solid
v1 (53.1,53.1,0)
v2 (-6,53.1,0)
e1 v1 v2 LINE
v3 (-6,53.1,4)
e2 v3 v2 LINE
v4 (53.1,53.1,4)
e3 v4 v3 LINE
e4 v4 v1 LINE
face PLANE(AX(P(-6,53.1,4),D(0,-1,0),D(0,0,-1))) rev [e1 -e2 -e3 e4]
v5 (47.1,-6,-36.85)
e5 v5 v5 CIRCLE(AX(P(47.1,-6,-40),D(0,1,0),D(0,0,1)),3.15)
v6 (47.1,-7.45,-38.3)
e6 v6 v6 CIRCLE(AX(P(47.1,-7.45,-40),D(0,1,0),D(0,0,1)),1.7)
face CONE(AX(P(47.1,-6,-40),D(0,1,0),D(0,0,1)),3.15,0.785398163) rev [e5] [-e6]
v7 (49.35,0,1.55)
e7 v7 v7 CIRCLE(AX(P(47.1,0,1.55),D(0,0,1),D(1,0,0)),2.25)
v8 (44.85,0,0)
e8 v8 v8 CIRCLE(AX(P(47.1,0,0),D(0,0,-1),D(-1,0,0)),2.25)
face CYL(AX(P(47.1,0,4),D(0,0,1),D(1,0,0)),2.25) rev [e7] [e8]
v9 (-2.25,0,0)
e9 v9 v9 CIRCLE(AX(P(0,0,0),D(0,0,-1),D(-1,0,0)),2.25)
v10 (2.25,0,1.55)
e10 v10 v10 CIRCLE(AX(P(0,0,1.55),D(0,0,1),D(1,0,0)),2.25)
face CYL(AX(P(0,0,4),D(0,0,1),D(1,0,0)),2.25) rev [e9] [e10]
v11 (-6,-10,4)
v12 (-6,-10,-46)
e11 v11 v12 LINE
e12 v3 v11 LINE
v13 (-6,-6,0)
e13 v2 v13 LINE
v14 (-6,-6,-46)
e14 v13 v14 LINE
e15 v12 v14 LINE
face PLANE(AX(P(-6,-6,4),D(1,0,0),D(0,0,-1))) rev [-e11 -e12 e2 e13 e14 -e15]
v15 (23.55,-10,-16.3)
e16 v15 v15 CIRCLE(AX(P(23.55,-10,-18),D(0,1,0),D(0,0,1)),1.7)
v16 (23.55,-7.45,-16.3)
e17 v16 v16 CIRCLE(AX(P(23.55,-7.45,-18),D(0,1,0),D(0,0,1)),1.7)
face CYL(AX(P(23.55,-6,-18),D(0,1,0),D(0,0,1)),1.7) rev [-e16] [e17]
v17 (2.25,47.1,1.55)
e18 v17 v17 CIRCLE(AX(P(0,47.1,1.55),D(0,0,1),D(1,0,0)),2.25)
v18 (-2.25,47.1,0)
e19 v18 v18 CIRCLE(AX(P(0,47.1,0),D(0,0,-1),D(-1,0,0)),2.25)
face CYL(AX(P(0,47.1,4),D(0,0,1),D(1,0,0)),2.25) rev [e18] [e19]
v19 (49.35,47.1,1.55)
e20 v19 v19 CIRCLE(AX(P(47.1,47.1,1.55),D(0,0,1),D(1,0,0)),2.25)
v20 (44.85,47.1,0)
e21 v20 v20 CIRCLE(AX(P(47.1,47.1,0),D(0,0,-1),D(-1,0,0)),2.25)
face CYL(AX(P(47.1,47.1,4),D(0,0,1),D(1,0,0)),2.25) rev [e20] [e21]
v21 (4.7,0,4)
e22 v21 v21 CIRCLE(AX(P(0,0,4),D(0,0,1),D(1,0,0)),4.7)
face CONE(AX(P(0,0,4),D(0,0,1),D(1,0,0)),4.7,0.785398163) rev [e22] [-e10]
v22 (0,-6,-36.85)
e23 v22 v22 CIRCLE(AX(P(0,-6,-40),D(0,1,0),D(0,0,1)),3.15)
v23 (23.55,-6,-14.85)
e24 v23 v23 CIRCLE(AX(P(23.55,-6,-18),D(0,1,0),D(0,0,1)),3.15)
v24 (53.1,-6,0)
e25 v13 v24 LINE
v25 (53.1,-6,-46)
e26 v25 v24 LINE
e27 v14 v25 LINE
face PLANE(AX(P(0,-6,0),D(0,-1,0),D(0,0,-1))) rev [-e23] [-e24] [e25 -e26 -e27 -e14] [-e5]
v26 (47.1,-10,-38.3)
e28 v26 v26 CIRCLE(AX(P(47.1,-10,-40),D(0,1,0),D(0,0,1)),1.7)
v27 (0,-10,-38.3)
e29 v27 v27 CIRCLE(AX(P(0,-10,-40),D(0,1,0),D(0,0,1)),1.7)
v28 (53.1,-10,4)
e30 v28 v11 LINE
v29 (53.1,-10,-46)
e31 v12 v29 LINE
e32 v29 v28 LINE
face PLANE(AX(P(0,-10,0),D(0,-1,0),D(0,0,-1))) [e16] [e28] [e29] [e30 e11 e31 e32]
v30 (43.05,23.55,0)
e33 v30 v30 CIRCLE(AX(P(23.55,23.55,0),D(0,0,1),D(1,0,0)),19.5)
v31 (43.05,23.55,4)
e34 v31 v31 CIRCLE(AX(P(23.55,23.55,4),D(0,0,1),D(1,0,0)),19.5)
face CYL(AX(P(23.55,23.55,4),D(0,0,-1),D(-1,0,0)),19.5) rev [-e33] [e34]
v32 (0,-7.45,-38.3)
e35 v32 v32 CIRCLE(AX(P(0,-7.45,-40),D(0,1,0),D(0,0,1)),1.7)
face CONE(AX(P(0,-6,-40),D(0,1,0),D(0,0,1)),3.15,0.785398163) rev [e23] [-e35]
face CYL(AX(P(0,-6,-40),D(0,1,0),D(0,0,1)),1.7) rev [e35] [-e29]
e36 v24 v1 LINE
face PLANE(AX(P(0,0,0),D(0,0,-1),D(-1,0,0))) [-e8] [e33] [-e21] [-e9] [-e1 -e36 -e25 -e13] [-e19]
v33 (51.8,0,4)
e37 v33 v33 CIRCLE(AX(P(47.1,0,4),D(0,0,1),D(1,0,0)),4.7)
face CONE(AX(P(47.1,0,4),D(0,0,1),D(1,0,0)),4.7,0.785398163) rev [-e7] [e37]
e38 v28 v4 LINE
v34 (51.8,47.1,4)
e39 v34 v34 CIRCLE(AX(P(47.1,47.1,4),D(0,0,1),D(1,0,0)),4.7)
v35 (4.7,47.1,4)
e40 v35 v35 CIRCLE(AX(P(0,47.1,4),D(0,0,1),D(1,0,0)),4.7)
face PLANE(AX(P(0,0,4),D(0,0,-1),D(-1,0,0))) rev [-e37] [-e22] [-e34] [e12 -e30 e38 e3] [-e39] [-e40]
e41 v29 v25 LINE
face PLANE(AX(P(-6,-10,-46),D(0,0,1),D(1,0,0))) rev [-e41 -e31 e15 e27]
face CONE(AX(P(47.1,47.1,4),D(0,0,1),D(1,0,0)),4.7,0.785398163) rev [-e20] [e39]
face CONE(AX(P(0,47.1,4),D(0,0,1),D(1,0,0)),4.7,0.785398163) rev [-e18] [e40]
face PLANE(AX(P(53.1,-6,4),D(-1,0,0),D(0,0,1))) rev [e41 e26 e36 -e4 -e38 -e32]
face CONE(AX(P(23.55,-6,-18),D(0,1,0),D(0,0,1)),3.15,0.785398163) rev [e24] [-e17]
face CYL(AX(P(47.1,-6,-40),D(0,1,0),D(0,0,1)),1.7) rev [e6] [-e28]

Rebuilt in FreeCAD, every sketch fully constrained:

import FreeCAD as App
import Part
import Sketcher

V = App.Vector
Q = App.Units.Quantity

doc = App.newDocument("Part")
body = doc.addObject("PartDesign::Body", "Body")

# Sketch on XY plane
sketch1 = body.newObject("Sketcher::SketchObject", "Sketch")
sketch1.AttachmentSupport = (doc.getObject("XY_Plane"), [""])
sketch1.MapMode = "FlatFace"
sketch1.addGeometry(Part.LineSegment(V(-6, 53.1, 0), V(-6, -6, 0)), False)
sketch1.addGeometry(Part.LineSegment(V(-6, -6, 0), V(53.1, -6, 0)), False)
sketch1.addGeometry(Part.LineSegment(V(53.1, -6, 0), V(53.1, 53.1, 0)), False)
sketch1.addGeometry(Part.LineSegment(V(53.1, 53.1, 0), V(-6, 53.1, 0)), False)
sketch1.addGeometry(Part.Circle(V(0, 0, 0), V(0, 0, 1), 1.55), False)
sketch1.addGeometry(Part.Circle(V(47.1, 0, 0), V(0, 0, 1), 1.55), False)
sketch1.addGeometry(Part.Circle(V(0, 47.1, 0), V(0, 0, 1), 1.55), False)
sketch1.addGeometry(Part.Circle(V(23.55, 23.55, 0), V(0, 0, 1), 19.5), False)
sketch1.addGeometry(Part.Circle(V(47.1, 47.1, 0), V(0, 0, 1), 1.55), False)
sketch1.addConstraint(Sketcher.Constraint("Coincident", 0, 2, 1, 1))
sketch1.addConstraint(Sketcher.Constraint("Coincident", 1, 2, 2, 1))
sketch1.addConstraint(Sketcher.Constraint("Coincident", 2, 2, 3, 1))
sketch1.addConstraint(Sketcher.Constraint("Coincident", 3, 2, 0, 1))
sketch1.addConstraint(Sketcher.Constraint("Vertical", 0))
sketch1.addConstraint(Sketcher.Constraint("Horizontal", 1))
sketch1.addConstraint(Sketcher.Constraint("Vertical", 2))
sketch1.addConstraint(Sketcher.Constraint("Horizontal", 3))
sketch1.addConstraint(Sketcher.Constraint("Coincident", 4, 3, -1, 1))
sketch1.addConstraint(Sketcher.Constraint("Equal", 4, 5))
sketch1.addConstraint(Sketcher.Constraint("Equal", 5, 6))
sketch1.addConstraint(Sketcher.Constraint("Equal", 6, 8))
sketch1.addConstraint(Sketcher.Constraint("PointOnObject", 5, 3, -1))
sketch1.addConstraint(Sketcher.Constraint("PointOnObject", 6, 3, -2))
sketch1.addConstraint(Sketcher.Constraint("Horizontal", 6, 3, 8, 3))
sketch1.addConstraint(Sketcher.Constraint("Vertical", 5, 3, 8, 3))
sketch1.addConstraint(Sketcher.Constraint("Equal", 3, 0))
sketch1.addConstraint(Sketcher.Constraint("Diameter", 7, Q("39 mm")))
sketch1.addConstraint(Sketcher.Constraint("Diameter", 4, Q("3.1 mm")))
sketch1.addConstraint(Sketcher.Constraint("DistanceX", 1, 1, 1, 2, Q("59.1 mm")))
sketch1.addConstraint(Sketcher.Constraint("DistanceX", 0, 2, -1, 1, Q("6 mm")))
sketch1.addConstraint(Sketcher.Constraint("DistanceY", 0, 2, -1, 1, Q("6 mm")))
sketch1.addConstraint(Sketcher.Constraint("DistanceX", 5, 3, 1, 2, Q("6 mm")))
sketch1.addConstraint(Sketcher.Constraint("DistanceY", 8, 3, 2, 2, Q("6 mm")))
sketch1.addConstraint(Sketcher.Constraint("DistanceX", -1, 1, 7, 3, Q("23.55 mm")))
sketch1.addConstraint(Sketcher.Constraint("DistanceY", -1, 1, 7, 3, Q("23.55 mm")))
pad1 = body.newObject("PartDesign::Pad", "Pad")
pad1.Profile = sketch1
pad1.Length = 4

# Sketch on XZ plane
sketch2 = body.newObject("Sketcher::SketchObject", "Sketch001")
sketch2.AttachmentSupport = (doc.getObject("XZ_Plane"), [""])
sketch2.MapMode = "FlatFace"
sketch2.AttachmentOffset = App.Placement(V(0, 0, 6), App.Rotation())
sketch2.addGeometry(Part.LineSegment(V(-6, 4, 0), V(-6, -46, 0)), False)
sketch2.addGeometry(Part.LineSegment(V(-6, -46, 0), V(53.1, -46, 0)), False)
sketch2.addGeometry(Part.LineSegment(V(53.1, -46, 0), V(53.1, 4, 0)), False)
sketch2.addGeometry(Part.LineSegment(V(53.1, 4, 0), V(-6, 4, 0)), False)
sketch2.addGeometry(Part.Circle(V(0, -40, 0), V(0, 0, 1), 1.5), False)
sketch2.addGeometry(Part.Circle(V(47.1, -40, 0), V(0, 0, 1), 1.5), False)
sketch2.addGeometry(Part.Circle(V(23.55, -18, 0), V(0, 0, 1), 1.5), False)
sketch2.addConstraint(Sketcher.Constraint("Coincident", 0, 2, 1, 1))
sketch2.addConstraint(Sketcher.Constraint("Coincident", 1, 2, 2, 1))
sketch2.addConstraint(Sketcher.Constraint("Coincident", 2, 2, 3, 1))
sketch2.addConstraint(Sketcher.Constraint("Coincident", 3, 2, 0, 1))
sketch2.addConstraint(Sketcher.Constraint("Vertical", 0))
sketch2.addConstraint(Sketcher.Constraint("Horizontal", 1))
sketch2.addConstraint(Sketcher.Constraint("Vertical", 2))
sketch2.addConstraint(Sketcher.Constraint("Horizontal", 3))
sketch2.addConstraint(Sketcher.Constraint("Equal", 4, 5))
sketch2.addConstraint(Sketcher.Constraint("Equal", 5, 6))
sketch2.addConstraint(Sketcher.Constraint("PointOnObject", 4, 3, -2))
sketch2.addConstraint(Sketcher.Constraint("Horizontal", 4, 3, 5, 3))
sketch2.addConstraint(Sketcher.Constraint("Diameter", 4, Q("3 mm")))
sketch2.addConstraint(Sketcher.Constraint("DistanceY", 0, 2, 0, 1, Q("50 mm")))
sketch2.addConstraint(Sketcher.Constraint("DistanceX", 1, 1, 1, 2, Q("59.1 mm")))
sketch2.addConstraint(Sketcher.Constraint("DistanceY", 4, 3, -1, 1, Q("40 mm")))
sketch2.addConstraint(Sketcher.Constraint("DistanceY", 6, 3, -1, 1, Q("18 mm")))
sketch2.addConstraint(Sketcher.Constraint("DistanceX", 0, 2, -1, 1, Q("6 mm")))
sketch2.addConstraint(Sketcher.Constraint("DistanceY", 0, 2, -1, 1, Q("46 mm")))
sketch2.addConstraint(Sketcher.Constraint("DistanceX", 5, 3, 1, 2, Q("6 mm")))
sketch2.addConstraint(Sketcher.Constraint("DistanceX", -1, 1, 6, 3, Q("23.55 mm")))
pad2 = body.newObject("PartDesign::Pad", "Pad001")
pad2.Profile = sketch2
pad2.Length = 4

# Sketch on XZ plane
sketch3 = body.newObject("Sketcher::SketchObject", "Sketch002")
sketch3.AttachmentSupport = (doc.getObject("XZ_Plane"), [""])
sketch3.MapMode = "FlatFace"
sketch3.AttachmentOffset = App.Placement(V(0, 0, 6), App.Rotation())
sketch3.addGeometry(Part.Circle(V(0, -40, 0), V(0, 0, 1), 1.7), False)
sketch3.addGeometry(Part.Circle(V(47.1, -40, 0), V(0, 0, 1), 1.7), False)
sketch3.addGeometry(Part.Circle(V(23.55, -18, 0), V(0, 0, 1), 1.7), False)
sketch3.addConstraint(Sketcher.Constraint("Equal", 0, 1))
sketch3.addConstraint(Sketcher.Constraint("Equal", 1, 2))
sketch3.addConstraint(Sketcher.Constraint("PointOnObject", 0, 3, -2))
sketch3.addConstraint(Sketcher.Constraint("Horizontal", 0, 3, 1, 3))
sketch3.addConstraint(Sketcher.Constraint("Diameter", 0, Q("3.4 mm")))
sketch3.addConstraint(Sketcher.Constraint("DistanceY", 0, 3, -1, 1, Q("40 mm")))
sketch3.addConstraint(Sketcher.Constraint("DistanceY", 2, 3, -1, 1, Q("18 mm")))
sketch3.addConstraint(Sketcher.Constraint("DistanceX", -1, 1, 1, 3, Q("47.1 mm")))
sketch3.addConstraint(Sketcher.Constraint("DistanceX", -1, 1, 2, 3, Q("23.55 mm")))
doc.recompute()
hole = body.newObject("PartDesign::Hole", "Hole")
hole.Profile = sketch3
hole.ThreadType = "None"
hole.Diameter = 3.4
hole.DepthType = "ThroughAll"
hole.HoleCutType = "Countersink"
hole.HoleCutDiameter = 6.3
hole.HoleCutCountersinkAngle = 90
hole.Reversed = True

# Sketch on XY plane
sketch4 = body.newObject("Sketcher::SketchObject", "Sketch003")
sketch4.AttachmentSupport = (doc.getObject("XY_Plane"), [""])
sketch4.MapMode = "FlatFace"
sketch4.AttachmentOffset = App.Placement(V(0, 0, 4), App.Rotation())
sketch4.addGeometry(Part.Circle(V(0, 47.1, 0), V(0, 0, 1), 2.25), False)
sketch4.addGeometry(Part.Circle(V(47.1, 47.1, 0), V(0, 0, 1), 2.25), False)
sketch4.addGeometry(Part.Circle(V(47.1, 0, 0), V(0, 0, 1), 2.25), False)
sketch4.addGeometry(Part.Circle(V(0, 0, 0), V(0, 0, 1), 2.25), False)
sketch4.addConstraint(Sketcher.Constraint("Coincident", 3, 3, -1, 1))
sketch4.addConstraint(Sketcher.Constraint("Equal", 0, 1))
sketch4.addConstraint(Sketcher.Constraint("Equal", 1, 2))
sketch4.addConstraint(Sketcher.Constraint("Equal", 2, 3))
sketch4.addConstraint(Sketcher.Constraint("PointOnObject", 0, 3, -2))
sketch4.addConstraint(Sketcher.Constraint("PointOnObject", 2, 3, -1))
sketch4.addConstraint(Sketcher.Constraint("Horizontal", 0, 3, 1, 3))
sketch4.addConstraint(Sketcher.Constraint("Vertical", 1, 3, 2, 3))
sketch4.addConstraint(Sketcher.Constraint("Diameter", 0, Q("4.5 mm")))
sketch4.addConstraint(Sketcher.Constraint("DistanceY", -1, 1, 0, 3, Q("47.1 mm")))
sketch4.addConstraint(Sketcher.Constraint("DistanceX", -1, 1, 1, 3, Q("47.1 mm")))
doc.recompute()
hole2 = body.newObject("PartDesign::Hole", "Hole001")
hole2.Profile = sketch4
hole2.ThreadType = "None"
hole2.Diameter = 4.5
hole2.DepthType = "ThroughAll"
hole2.HoleCutType = "Countersink"
hole2.HoleCutDiameter = 9.4
hole2.HoleCutCountersinkAngle = 90

doc.recompute()
